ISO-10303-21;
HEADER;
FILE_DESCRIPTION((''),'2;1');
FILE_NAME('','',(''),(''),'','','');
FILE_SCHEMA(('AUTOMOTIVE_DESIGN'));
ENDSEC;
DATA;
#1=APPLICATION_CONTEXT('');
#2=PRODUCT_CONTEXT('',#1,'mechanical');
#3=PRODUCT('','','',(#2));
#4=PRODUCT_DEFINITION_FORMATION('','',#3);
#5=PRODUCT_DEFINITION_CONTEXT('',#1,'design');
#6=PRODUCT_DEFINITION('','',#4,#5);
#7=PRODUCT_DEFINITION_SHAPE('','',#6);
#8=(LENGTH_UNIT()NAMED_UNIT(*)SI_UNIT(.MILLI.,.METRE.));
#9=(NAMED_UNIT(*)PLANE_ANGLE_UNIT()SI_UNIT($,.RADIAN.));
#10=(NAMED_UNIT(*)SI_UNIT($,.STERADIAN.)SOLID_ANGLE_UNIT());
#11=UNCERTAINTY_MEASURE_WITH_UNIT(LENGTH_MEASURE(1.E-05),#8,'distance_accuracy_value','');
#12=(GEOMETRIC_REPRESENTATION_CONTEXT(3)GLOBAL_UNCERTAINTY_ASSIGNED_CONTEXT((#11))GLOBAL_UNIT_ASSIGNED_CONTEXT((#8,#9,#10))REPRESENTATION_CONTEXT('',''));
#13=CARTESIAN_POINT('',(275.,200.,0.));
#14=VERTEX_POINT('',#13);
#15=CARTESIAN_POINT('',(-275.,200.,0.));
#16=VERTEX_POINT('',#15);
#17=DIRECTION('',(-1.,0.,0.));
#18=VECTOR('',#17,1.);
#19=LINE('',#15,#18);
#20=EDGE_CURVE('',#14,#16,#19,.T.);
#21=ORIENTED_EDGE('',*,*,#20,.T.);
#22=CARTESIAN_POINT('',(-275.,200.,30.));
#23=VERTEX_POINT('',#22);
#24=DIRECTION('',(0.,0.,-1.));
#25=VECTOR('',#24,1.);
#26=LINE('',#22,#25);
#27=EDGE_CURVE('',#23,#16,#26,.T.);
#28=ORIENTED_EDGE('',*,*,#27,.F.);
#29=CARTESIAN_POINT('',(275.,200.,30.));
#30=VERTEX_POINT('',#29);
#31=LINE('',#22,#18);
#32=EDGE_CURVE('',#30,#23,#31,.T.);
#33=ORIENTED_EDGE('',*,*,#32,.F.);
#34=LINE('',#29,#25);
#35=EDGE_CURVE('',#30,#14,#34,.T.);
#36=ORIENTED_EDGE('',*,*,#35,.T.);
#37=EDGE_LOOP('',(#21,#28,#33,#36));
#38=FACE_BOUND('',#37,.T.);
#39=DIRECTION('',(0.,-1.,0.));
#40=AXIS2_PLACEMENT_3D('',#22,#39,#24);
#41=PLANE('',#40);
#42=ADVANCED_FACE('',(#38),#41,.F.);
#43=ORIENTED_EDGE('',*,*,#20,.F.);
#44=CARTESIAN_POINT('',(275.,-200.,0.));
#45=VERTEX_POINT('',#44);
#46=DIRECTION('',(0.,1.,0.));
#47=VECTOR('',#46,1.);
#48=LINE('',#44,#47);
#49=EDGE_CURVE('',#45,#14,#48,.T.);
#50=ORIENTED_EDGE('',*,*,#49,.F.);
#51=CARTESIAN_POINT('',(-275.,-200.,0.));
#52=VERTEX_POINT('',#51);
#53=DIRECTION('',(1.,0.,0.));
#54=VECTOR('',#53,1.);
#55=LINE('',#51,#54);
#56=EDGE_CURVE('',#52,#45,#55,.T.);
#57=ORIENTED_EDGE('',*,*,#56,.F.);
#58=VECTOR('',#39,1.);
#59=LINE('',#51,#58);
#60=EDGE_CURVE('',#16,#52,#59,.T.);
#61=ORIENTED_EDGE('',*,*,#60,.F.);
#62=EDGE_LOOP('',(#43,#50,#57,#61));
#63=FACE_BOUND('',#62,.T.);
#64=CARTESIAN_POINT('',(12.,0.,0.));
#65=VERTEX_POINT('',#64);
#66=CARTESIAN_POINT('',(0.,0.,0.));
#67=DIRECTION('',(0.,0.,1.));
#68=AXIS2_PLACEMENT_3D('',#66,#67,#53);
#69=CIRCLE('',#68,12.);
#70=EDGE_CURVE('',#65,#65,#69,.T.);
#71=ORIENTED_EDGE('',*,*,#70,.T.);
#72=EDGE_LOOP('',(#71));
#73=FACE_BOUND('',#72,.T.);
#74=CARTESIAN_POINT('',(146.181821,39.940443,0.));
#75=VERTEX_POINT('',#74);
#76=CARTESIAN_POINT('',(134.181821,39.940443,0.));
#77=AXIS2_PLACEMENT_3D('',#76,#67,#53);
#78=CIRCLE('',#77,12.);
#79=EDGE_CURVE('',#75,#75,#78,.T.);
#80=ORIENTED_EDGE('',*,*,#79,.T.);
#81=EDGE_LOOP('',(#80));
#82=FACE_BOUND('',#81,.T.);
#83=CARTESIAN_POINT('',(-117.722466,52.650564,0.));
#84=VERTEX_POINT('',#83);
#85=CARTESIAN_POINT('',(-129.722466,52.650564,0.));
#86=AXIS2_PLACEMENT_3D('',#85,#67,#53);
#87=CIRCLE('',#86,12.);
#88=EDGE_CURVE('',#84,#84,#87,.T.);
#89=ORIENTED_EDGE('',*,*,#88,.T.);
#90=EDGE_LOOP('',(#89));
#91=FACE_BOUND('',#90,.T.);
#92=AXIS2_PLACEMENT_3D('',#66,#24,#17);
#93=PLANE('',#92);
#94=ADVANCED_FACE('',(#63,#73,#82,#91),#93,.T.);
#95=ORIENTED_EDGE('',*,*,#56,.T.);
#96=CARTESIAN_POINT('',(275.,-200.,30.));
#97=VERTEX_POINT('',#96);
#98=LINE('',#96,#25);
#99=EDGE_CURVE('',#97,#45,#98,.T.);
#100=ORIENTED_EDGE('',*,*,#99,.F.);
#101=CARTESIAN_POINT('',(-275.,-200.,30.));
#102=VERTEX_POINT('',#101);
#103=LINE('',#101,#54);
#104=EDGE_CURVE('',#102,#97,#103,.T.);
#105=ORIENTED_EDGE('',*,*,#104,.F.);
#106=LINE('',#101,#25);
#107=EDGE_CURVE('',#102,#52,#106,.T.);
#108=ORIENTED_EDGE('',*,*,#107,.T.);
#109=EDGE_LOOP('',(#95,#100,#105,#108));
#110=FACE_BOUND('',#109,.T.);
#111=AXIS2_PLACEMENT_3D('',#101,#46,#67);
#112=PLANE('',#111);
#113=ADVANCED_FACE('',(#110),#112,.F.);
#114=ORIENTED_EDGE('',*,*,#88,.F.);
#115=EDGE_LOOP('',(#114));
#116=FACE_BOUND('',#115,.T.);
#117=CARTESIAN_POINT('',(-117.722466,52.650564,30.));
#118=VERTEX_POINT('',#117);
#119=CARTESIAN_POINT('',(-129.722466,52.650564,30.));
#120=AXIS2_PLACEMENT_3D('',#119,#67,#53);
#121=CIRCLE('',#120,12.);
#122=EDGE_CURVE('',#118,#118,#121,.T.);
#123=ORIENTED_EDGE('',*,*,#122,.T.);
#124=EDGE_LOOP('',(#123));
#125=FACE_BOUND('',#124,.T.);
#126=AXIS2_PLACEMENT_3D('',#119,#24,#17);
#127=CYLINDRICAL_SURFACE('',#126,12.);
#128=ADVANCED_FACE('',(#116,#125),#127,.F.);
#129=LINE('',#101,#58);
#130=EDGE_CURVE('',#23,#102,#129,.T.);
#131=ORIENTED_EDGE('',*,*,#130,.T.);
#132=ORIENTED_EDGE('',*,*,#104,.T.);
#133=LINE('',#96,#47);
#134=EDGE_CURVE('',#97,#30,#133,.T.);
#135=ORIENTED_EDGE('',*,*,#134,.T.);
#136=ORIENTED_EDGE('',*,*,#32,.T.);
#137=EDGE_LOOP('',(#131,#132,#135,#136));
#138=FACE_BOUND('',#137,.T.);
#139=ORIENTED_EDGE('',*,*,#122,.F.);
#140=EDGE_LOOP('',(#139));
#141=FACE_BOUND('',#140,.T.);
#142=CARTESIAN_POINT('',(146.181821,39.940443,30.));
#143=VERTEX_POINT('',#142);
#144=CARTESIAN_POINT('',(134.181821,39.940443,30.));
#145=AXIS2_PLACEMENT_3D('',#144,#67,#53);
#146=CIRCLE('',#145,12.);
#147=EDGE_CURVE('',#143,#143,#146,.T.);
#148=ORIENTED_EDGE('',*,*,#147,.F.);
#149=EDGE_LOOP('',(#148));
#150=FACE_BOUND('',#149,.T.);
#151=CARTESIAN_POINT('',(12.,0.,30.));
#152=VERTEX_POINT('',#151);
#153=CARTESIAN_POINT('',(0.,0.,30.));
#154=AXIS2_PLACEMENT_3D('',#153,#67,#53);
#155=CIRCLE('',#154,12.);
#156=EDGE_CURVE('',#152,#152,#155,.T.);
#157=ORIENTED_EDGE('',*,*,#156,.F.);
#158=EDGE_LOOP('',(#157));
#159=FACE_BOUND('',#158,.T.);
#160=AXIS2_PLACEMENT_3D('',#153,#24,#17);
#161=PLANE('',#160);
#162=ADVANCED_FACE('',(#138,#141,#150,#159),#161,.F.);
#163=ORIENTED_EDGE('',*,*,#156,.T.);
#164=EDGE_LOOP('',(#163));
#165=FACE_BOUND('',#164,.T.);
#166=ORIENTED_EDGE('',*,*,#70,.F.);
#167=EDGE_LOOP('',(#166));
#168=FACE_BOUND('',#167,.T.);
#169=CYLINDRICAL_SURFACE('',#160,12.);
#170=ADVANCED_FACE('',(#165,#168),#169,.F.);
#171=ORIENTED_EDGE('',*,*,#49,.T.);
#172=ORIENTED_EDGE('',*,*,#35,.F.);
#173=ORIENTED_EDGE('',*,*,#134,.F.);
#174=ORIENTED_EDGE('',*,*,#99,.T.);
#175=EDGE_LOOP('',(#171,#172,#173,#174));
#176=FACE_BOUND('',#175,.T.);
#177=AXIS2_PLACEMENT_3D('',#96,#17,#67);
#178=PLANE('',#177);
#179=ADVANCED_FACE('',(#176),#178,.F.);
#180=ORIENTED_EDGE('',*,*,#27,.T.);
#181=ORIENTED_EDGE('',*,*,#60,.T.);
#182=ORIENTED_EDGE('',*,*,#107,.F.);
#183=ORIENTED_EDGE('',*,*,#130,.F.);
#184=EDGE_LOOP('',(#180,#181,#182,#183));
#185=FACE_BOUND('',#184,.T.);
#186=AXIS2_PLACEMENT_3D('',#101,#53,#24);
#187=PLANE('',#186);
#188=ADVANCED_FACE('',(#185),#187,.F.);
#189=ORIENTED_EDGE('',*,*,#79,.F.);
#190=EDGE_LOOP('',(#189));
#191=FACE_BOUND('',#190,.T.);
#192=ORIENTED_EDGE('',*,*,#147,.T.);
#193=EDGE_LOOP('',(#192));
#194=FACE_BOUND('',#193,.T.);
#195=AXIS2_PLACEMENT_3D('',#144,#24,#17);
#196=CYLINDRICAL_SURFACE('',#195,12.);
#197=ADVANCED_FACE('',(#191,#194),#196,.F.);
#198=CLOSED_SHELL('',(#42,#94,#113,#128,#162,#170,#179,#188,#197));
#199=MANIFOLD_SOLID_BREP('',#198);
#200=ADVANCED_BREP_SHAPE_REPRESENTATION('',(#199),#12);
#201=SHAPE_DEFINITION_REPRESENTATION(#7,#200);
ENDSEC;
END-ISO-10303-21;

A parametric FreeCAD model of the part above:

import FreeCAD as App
import Part
import Sketcher
from FreeCAD import Vector
Q = App.Units.Quantity

doc = App.newDocument("Part")
body = doc.addObject("PartDesign::Body", "Body")

# Sketch on XY plane
sketch1 = body.newObject("Sketcher::SketchObject", "Sketch")
sketch1.AttachmentSupport = (doc.getObject("XY_Plane"), [""])
sketch1.MapMode = "FlatFace"
sketch1.addGeometry(Part.LineSegment(Vector(-275, 200, 0), Vector(-275, -200, 0)), False)
sketch1.addGeometry(Part.LineSegment(Vector(-275, -200, 0), Vector(275, -200, 0)), False)
sketch1.addGeometry(Part.LineSegment(Vector(275, -200, 0), Vector(275, 200, 0)), False)
sketch1.addGeometry(Part.LineSegment(Vector(275, 200, 0), Vector(-275, 200, 0)), False)
sketch1.addGeometry(Part.Circle(Vector(0, 0, 0), Vector(0, 0, 1), 12), False)
sketch1.addGeometry(Part.Circle(Vector(-129.722466, 52.650564, 0), Vector(0, 0, 1), 12), False)
sketch1.addGeometry(Part.Circle(Vector(134.181821, 39.940443, 0), Vector(0, 0, 1), 12), False)
sketch1.addConstraint(Sketcher.Constraint("Coincident", 0, 2, 1, 1))
sketch1.addConstraint(Sketcher.Constraint("Coincident", 1, 2, 2, 1))
sketch1.addConstraint(Sketcher.Constraint("Coincident", 2, 2, 3, 1))
sketch1.addConstraint(Sketcher.Constraint("Coincident", 3, 2, 0, 1))
sketch1.addConstraint(Sketcher.Constraint("Vertical", 0))
sketch1.addConstraint(Sketcher.Constraint("Horizontal", 1))
sketch1.addConstraint(Sketcher.Constraint("Vertical", 2))
sketch1.addConstraint(Sketcher.Constraint("Horizontal", 3))
sketch1.addConstraint(Sketcher.Constraint("Coincident", 4, 3, -1, 1))
sketch1.addConstraint(Sketcher.Constraint("Equal", 4, 5))
sketch1.addConstraint(Sketcher.Constraint("Equal", 5, 6))
sketch1.addConstraint(Sketcher.Constraint("Symmetric", 0, 2, 2, 2, -1, 1))
sketch1.addConstraint(Sketcher.Constraint("Diameter", 4, Q("24 mm")))
sketch1.addConstraint(Sketcher.Constraint("DistanceX", 1, 1, 1, 2, Q("550 mm")))
sketch1.addConstraint(Sketcher.Constraint("DistanceY", 0, 2, 0, 1, Q("400 mm")))
sketch1.addConstraint(Sketcher.Constraint("DistanceX", -1, 1, 6, 3, Q("134.181821 mm")))
sketch1.addConstraint(Sketcher.Constraint("DistanceY", 6, 3, 5, 3, Q("12.710121 mm")))
sketch1.addConstraint(Sketcher.Constraint("DistanceX", 5, 3, -1, 1, Q("129.722466 mm")))
sketch1.addConstraint(Sketcher.Constraint("DistanceY", -1, 1, 5, 3, Q("52.650564 mm")))
pad1 = body.newObject("PartDesign::Pad", "Pad")
pad1.Profile = sketch1
pad1.Length = 30

doc.recompute()
